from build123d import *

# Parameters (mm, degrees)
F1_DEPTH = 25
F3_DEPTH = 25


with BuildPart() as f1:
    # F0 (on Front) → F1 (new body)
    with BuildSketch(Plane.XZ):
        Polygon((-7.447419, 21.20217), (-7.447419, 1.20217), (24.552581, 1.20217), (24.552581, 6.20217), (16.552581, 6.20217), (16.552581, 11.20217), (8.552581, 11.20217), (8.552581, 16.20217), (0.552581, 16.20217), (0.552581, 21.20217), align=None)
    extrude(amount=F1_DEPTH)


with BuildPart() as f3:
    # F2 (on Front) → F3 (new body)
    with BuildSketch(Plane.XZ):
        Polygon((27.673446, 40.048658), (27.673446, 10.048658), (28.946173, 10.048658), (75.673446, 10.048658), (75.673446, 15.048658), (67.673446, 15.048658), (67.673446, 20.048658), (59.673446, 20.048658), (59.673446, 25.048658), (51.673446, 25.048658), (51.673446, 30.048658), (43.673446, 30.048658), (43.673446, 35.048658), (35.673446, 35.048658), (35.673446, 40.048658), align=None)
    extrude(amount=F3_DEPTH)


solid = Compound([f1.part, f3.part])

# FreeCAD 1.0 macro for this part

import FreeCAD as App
import Part
import Sketcher

V = App.Vector

doc = App.newDocument("Part")
body = doc.addObject("PartDesign::Body", "Body")

# Sketch on XZ plane
sketch1 = body.newObject("Sketcher::SketchObject", "Sketch")
sketch1.AttachmentSupport = (doc.getObject("XZ_Plane"), [""])
sketch1.MapMode = "FlatFace"
sketch1.addGeometry(Part.LineSegment(V(-7.447419, 21.20217, 0), V(-7.447419, 1.20217, 0)), False)
sketch1.addGeometry(Part.LineSegment(V(-7.447419, 1.20217, 0), V(24.552581, 1.20217, 0)), False)
sketch1.addGeometry(Part.LineSegment(V(24.552581, 1.20217, 0), V(24.552581, 6.20217, 0)), False)
sketch1.addGeometry(Part.LineSegment(V(24.552581, 6.20217, 0), V(16.552581, 6.20217, 0)), False)
sketch1.addGeometry(Part.LineSegment(V(16.552581, 6.20217, 0), V(16.552581, 11.20217, 0)), False)
sketch1.addGeometry(Part.LineSegment(V(16.552581, 11.20217, 0), V(8.552581, 11.20217, 0)), False)
sketch1.addGeometry(Part.LineSegment(V(8.552581, 11.20217, 0), V(8.552581, 16.20217, 0)), False)
sketch1.addGeometry(Part.LineSegment(V(8.552581, 16.20217, 0), V(0.552581, 16.20217, 0)), False)
sketch1.addGeometry(Part.LineSegment(V(0.552581, 16.20217, 0), V(0.552581, 21.20217, 0)), False)
sketch1.addGeometry(Part.LineSegment(V(0.552581, 21.20217, 0), V(-7.447419, 21.20217, 0)), False)
sketch1.addConstraint(Sketcher.Constraint("Coincident", 0, 2, 1, 1))
sketch1.addConstraint(Sketcher.Constraint("Coincident", 1, 2, 2, 1))
sketch1.addConstraint(Sketcher.Constraint("Coincident", 2, 2, 3, 1))
sketch1.addConstraint(Sketcher.Constraint("Coincident", 3, 2, 4, 1))
sketch1.addConstraint(Sketcher.Constraint("Coincident", 4, 2, 5, 1))
sketch1.addConstraint(Sketcher.Constraint("Coincident", 5, 2, 6, 1))
sketch1.addConstraint(Sketcher.Constraint("Coincident", 6, 2, 7, 1))
sketch1.addConstraint(Sketcher.Constraint("Coincident", 7, 2, 8, 1))
sketch1.addConstraint(Sketcher.Constraint("Coincident", 8, 2, 9, 1))
sketch1.addConstraint(Sketcher.Constraint("Coincident", 9, 2, 0, 1))
sketch1.addConstraint(Sketcher.Constraint("Vertical", 0))
sketch1.addConstraint(Sketcher.Constraint("Horizontal", 1))
sketch1.addConstraint(Sketcher.Constraint("Vertical", 2))
sketch1.addConstraint(Sketcher.Constraint("Horizontal", 3))
sketch1.addConstraint(Sketcher.Constraint("Vertical", 4))
sketch1.addConstraint(Sketcher.Constraint("Horizontal", 5))
sketch1.addConstraint(Sketcher.Constraint("Vertical", 6))
sketch1.addConstraint(Sketcher.Constraint("Horizontal", 7))
sketch1.addConstraint(Sketcher.Constraint("Vertical", 8))
sketch1.addConstraint(Sketcher.Constraint("Horizontal", 9))
sketch1.addConstraint(Sketcher.Constraint("Equal", 3, 5))
sketch1.addConstraint(Sketcher.Constraint("Equal", 5, 7))
sketch1.addConstraint(Sketcher.Constraint("Equal", 7, 9))
sketch1.addConstraint(Sketcher.Constraint("Equal", 2, 4))
sketch1.addConstraint(Sketcher.Constraint("Equal", 4, 6))
sketch1.addConstraint(Sketcher.Constraint("Equal", 6, 8))
sketch1.addConstraint(Sketcher.Constraint("DistanceX", 1, 1, 1, 2, 32.0))
sketch1.addConstraint(Sketcher.Constraint("DistanceY", 0, 2, 0, 1, 20.0))
sketch1.addConstraint(Sketcher.Constraint("DistanceX", 0, 2, -1, 1, 7.447419))
sketch1.addConstraint(Sketcher.Constraint("DistanceY", -1, 1, 0, 2, 1.20217))
pad1 = body.newObject("PartDesign::Pad", "Pad")
pad1.Profile = sketch1
pad1.Length = 25
body2 = doc.addObject("PartDesign::Body", "Body001")

# Sketch on XZ plane
sketch2 = body2.newObject("Sketcher::SketchObject", "Sketch001")
sketch2.AttachmentSupport = (doc.getObject("XZ_Plane001"), [""])
sketch2.MapMode = "FlatFace"
sketch2.addGeometry(Part.LineSegment(V(27.673446, 40.048658, 0), V(27.673446, 10.048658, 0)), False)
sketch2.addGeometry(Part.LineSegment(V(27.673446, 10.048658, 0), V(75.673446, 10.048658, 0)), False)
sketch2.addGeometry(Part.LineSegment(V(75.673446, 10.048658, 0), V(75.673446, 15.048658, 0)), False)
sketch2.addGeometry(Part.LineSegment(V(75.673446, 15.048658, 0), V(67.673446, 15.048658, 0)), False)
sketch2.addGeometry(Part.LineSegment(V(67.673446, 15.048658, 0), V(67.673446, 20.048658, 0)), False)
sketch2.addGeometry(Part.LineSegment(V(67.673446, 20.048658, 0), V(59.673446, 20.048658, 0)), False)
sketch2.addGeometry(Part.LineSegment(V(59.673446, 20.048658, 0), V(59.673446, 25.048658, 0)), False)
sketch2.addGeometry(Part.LineSegment(V(59.673446, 25.048658, 0), V(51.673446, 25.048658, 0)), False)
sketch2.addGeometry(Part.LineSegment(V(51.673446, 25.048658, 0), V(51.673446, 30.048658, 0)), False)
sketch2.addGeometry(Part.LineSegment(V(51.673446, 30.048658, 0), V(43.673446, 30.048658, 0)), False)
sketch2.addGeometry(Part.LineSegment(V(43.673446, 30.048658, 0), V(43.673446, 35.048658, 0)), False)
sketch2.addGeometry(Part.LineSegment(V(43.673446, 35.048658, 0), V(35.673446, 35.048658, 0)), False)
sketch2.addGeometry(Part.LineSegment(V(35.673446, 35.048658, 0), V(35.673446, 40.048658, 0)), False)
sketch2.addGeometry(Part.LineSegment(V(35.673446, 40.048658, 0), V(27.673446, 40.048658, 0)), False)
sketch2.addConstraint(Sketcher.Constraint("Coincident", 0, 2, 1, 1))
sketch2.addConstraint(Sketcher.Constraint("Coincident", 1, 2, 2, 1))
sketch2.addConstraint(Sketcher.Constraint("Coincident", 2, 2, 3, 1))
sketch2.addConstraint(Sketcher.Constraint("Coincident", 3, 2, 4, 1))
sketch2.addConstraint(Sketcher.Constraint("Coincident", 4, 2, 5, 1))
sketch2.addConstraint(Sketcher.Constraint("Coincident", 5, 2, 6, 1))
sketch2.addConstraint(Sketcher.Constraint("Coincident", 6, 2, 7, 1))
sketch2.addConstraint(Sketcher.Constraint("Coincident", 7, 2, 8, 1))
sketch2.addConstraint(Sketcher.Constraint("Coincident", 8, 2, 9, 1))
sketch2.addConstraint(Sketcher.Constraint("Coincident", 9, 2, 10, 1))
sketch2.addConstraint(Sketcher.Constraint("Coincident", 10, 2, 11, 1))
sketch2.addConstraint(Sketcher.Constraint("Coincident", 11, 2, 12, 1))
sketch2.addConstraint(Sketcher.Constraint("Coincident", 12, 2, 13, 1))
sketch2.addConstraint(Sketcher.Constraint("Coincident", 13, 2, 0, 1))
sketch2.addConstraint(Sketcher.Constraint("Vertical", 0))
sketch2.addConstraint(Sketcher.Constraint("Horizontal", 1))
sketch2.addConstraint(Sketcher.Constraint("Vertical", 2))
sketch2.addConstraint(Sketcher.Constraint("Horizontal", 3))
sketch2.addConstraint(Sketcher.Constraint("Vertical", 4))
sketch2.addConstraint(Sketcher.Constraint("Horizontal", 5))
sketch2.addConstraint(Sketcher.Constraint("Vertical", 6))
sketch2.addConstraint(Sketcher.Constraint("Horizontal", 7))
sketch2.addConstraint(Sketcher.Constraint("Vertical", 8))
sketch2.addConstraint(Sketcher.Constraint("Horizontal", 9))
sketch2.addConstraint(Sketcher.Constraint("Vertical", 10))
sketch2.addConstraint(Sketcher.Constraint("Horizontal", 11))
sketch2.addConstraint(Sketcher.Constraint("Vertical", 12))
sketch2.addConstraint(Sketcher.Constraint("Horizontal", 13))
sketch2.addConstraint(Sketcher.Constraint("Equal", 3, 5))
sketch2.addConstraint(Sketcher.Constraint("Equal", 5, 7))
sketch2.addConstraint(Sketcher.Constraint("Equal", 7, 9))
sketch2.addConstraint(Sketcher.Constraint("Equal", 9, 11))
sketch2.addConstraint(Sketcher.Constraint("Equal", 11, 13))
sketch2.addConstraint(Sketcher.Constraint("Equal", 2, 4))
sketch2.addConstraint(Sketcher.Constraint("Equal", 4, 6))
sketch2.addConstraint(Sketcher.Constraint("Equal", 6, 8))
sketch2.addConstraint(Sketcher.Constraint("Equal", 8, 10))
sketch2.addConstraint(Sketcher.Constraint("Equal", 10, 12))
sketch2.addConstraint(Sketcher.Constraint("DistanceX", 1, 1, 1, 2, 48.0))
sketch2.addConstraint(Sketcher.Constraint("DistanceY", 0, 2, 0, 1, 30.0))
sketch2.addConstraint(Sketcher.Constraint("DistanceY", -1, 1, 10, 2, 35.048658))
sketch2.addConstraint(Sketcher.Constraint("DistanceX", -1, 1, 0, 2, 27.673446))
pad2 = body2.newObject("PartDesign::Pad", "Pad001")
pad2.Profile = sketch2
pad2.Length = 25

doc.recompute()
